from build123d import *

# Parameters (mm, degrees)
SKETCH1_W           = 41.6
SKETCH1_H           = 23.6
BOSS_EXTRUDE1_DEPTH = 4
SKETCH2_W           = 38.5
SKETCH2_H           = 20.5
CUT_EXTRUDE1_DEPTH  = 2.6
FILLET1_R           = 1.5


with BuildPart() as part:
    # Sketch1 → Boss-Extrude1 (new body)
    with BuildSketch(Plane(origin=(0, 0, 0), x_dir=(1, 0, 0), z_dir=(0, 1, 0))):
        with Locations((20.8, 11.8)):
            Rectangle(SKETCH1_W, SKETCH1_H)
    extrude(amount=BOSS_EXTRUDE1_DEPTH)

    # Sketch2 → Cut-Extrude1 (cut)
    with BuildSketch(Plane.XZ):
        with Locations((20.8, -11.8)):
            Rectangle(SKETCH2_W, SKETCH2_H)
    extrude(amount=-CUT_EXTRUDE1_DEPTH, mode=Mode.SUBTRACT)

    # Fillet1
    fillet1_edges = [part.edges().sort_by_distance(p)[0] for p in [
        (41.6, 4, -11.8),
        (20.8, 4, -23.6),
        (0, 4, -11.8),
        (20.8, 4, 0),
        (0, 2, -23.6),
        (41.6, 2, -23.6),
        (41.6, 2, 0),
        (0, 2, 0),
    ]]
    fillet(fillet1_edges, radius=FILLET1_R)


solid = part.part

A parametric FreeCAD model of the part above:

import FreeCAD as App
import Part
import Sketcher

V = App.Vector


def edges_at(feature, points):
    """Names of the edges that pass closest to the given points."""
    edges = feature.Shape.Edges
    near = lambda p: min(range(len(edges)), key=lambda i: edges[i].distToShape(Part.Vertex(*p))[0])
    return sorted({f"Edge{near(p) + 1}" for p in points})

doc = App.newDocument("Part")
body = doc.addObject("PartDesign::Body", "Body")

# Sketch on XZ plane
sketch1 = body.newObject("Sketcher::SketchObject", "Sketch")
sketch1.AttachmentSupport = (doc.getObject("XZ_Plane"), [""])
sketch1.MapMode = "FlatFace"
sketch1.addGeometry(Part.LineSegment(V(0, -24, 0), V(0, 0, 0)), False)
sketch1.addGeometry(Part.LineSegment(V(0, 0, 0), V(42, 0, 0)), False)
sketch1.addGeometry(Part.LineSegment(V(42, 0, 0), V(42, -24, 0)), False)
sketch1.addGeometry(Part.LineSegment(V(42, -24, 0), V(0, -24, 0)), False)
sketch1.addConstraint(Sketcher.Constraint("Coincident", 0, 2, 1, 1))
sketch1.addConstraint(Sketcher.Constraint("Coincident", 1, 2, 2, 1))
sketch1.addConstraint(Sketcher.Constraint("Coincident", 2, 2, 3, 1))
sketch1.addConstraint(Sketcher.Constraint("Coincident", 3, 2, 0, 1))
sketch1.addConstraint(Sketcher.Constraint("Vertical", 0))
sketch1.addConstraint(Sketcher.Constraint("Horizontal", 1))
sketch1.addConstraint(Sketcher.Constraint("Vertical", 2))
sketch1.addConstraint(Sketcher.Constraint("Horizontal", 3))
sketch1.addConstraint(Sketcher.Constraint("Coincident", 0, 2, -1, 1))
sketch1.addConstraint(Sketcher.Constraint("DistanceX", 1, 1, 1, 2, 41.6))
sketch1.addConstraint(Sketcher.Constraint("DistanceY", 0, 1, 0, 2, 23.6))
pad1 = body.newObject("PartDesign::Pad", "Pad")
pad1.Profile = sketch1
pad1.Length = 4
pad1.Reversed = True

# Sketch on XZ plane
sketch2 = body.newObject("Sketcher::SketchObject", "Sketch001")
sketch2.AttachmentSupport = (doc.getObject("XZ_Plane"), [""])
sketch2.MapMode = "FlatFace"
sketch2.addGeometry(Part.LineSegment(V(2, -2, 0), V(2, -22, 0)), False)
sketch2.addGeometry(Part.LineSegment(V(2, -22, 0), V(40, -22, 0)), False)
sketch2.addGeometry(Part.LineSegment(V(40, -22, 0), V(40, -2, 0)), False)
sketch2.addGeometry(Part.LineSegment(V(40, -2, 0), V(2, -2, 0)), False)
sketch2.addConstraint(Sketcher.Constraint("Coincident", 0, 2, 1, 1))
sketch2.addConstraint(Sketcher.Constraint("Coincident", 1, 2, 2, 1))
sketch2.addConstraint(Sketcher.Constraint("Coincident", 2, 2, 3, 1))
sketch2.addConstraint(Sketcher.Constraint("Coincident", 3, 2, 0, 1))
sketch2.addConstraint(Sketcher.Constraint("Vertical", 0))
sketch2.addConstraint(Sketcher.Constraint("Horizontal", 1))
sketch2.addConstraint(Sketcher.Constraint("Vertical", 2))
sketch2.addConstraint(Sketcher.Constraint("Horizontal", 3))
sketch2.addConstraint(Sketcher.Constraint("DistanceX", 1, 1, 1, 2, 38.5))
sketch2.addConstraint(Sketcher.Constraint("DistanceY", 0, 2, 0, 1, 20.5))
sketch2.addConstraint(Sketcher.Constraint("DistanceX", -1, 1, 0, 2, 1.55))
sketch2.addConstraint(Sketcher.Constraint("DistanceY", 0, 2, -1, 1, 22.05))
pocket1 = body.newObject("PartDesign::Pocket", "Pocket")
pocket1.Profile = sketch2
pocket1.Length = 2.6
doc.recompute()

fillet = body.newObject("PartDesign::Fillet", "Fillet")
fillet.Base = (pocket1, edges_at(pocket1, [
    (41.6, 4, -11.8),
    (20.8, 4, -23.6),
    (0, 4, -11.8),
    (20.8, 4, 0),
    (0, 2, -23.6),
    (41.6, 2, -23.6),
    (41.6, 2, 0),
    (0, 2, 0),
]))
fillet.Radius = 1.5

doc.recompute()
